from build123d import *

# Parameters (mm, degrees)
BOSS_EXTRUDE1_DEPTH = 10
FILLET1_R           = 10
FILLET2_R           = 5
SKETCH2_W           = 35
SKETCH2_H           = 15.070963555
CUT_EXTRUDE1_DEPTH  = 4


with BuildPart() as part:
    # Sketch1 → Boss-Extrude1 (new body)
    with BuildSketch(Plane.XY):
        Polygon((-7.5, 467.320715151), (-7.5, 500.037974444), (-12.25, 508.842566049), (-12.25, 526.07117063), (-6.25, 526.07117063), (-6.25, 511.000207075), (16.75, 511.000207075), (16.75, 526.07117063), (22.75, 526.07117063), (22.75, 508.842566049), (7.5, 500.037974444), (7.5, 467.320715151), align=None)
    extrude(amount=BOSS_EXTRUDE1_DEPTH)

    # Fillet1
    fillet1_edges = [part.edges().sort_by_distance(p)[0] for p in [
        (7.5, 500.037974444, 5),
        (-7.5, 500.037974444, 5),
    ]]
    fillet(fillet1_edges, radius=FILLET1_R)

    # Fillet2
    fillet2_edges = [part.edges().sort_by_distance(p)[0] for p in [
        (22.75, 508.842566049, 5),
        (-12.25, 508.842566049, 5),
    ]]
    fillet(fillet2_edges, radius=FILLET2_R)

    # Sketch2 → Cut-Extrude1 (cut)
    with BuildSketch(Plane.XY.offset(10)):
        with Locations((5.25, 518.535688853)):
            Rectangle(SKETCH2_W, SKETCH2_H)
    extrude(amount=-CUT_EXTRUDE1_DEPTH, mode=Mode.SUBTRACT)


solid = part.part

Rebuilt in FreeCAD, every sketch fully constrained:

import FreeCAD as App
import Part
import Sketcher

V = App.Vector
Q = App.Units.Quantity


def edges_at(feature, points):
    """Names of the edges that pass closest to the given points."""
    edges = feature.Shape.Edges
    near = lambda p: min(range(len(edges)), key=lambda i: edges[i].distToShape(Part.Vertex(*p))[0])
    return sorted({f"Edge{near(p) + 1}" for p in points})

doc = App.newDocument("Part")
params = doc.addObject("Spreadsheet::Sheet", "Params")
for row, (alias, value) in enumerate([
    ("sketch1_width", "15 mm"),
    ("sketch1_width2", "6 mm"),
    ("sketch1_width3", "23 mm"),
    ("pad1_length", "10 mm"),
    ("fillet_radius", "10 mm"),
    ("fillet2_radius", "5 mm"),
    ("sketch2_width", "35 mm"),
    ("pocket1_length", "4 mm"),
], start=1):
    params.set(f"A{row}", alias)
    params.set(f"B{row}", "=" + value)
    params.setAlias(f"B{row}", alias)

body = doc.addObject("PartDesign::Body", "Body")

# Sketch on XY plane
sketch1 = body.newObject("Sketcher::SketchObject", "Sketch")
sketch1.AttachmentSupport = (doc.getObject("XY_Plane"), [""])
sketch1.MapMode = "FlatFace"
sketch1.addGeometry(Part.LineSegment(V(-8, 500, 0), V(-8, 467, 0)), False)
sketch1.addGeometry(Part.LineSegment(V(-8, 467, 0), V(8, 467, 0)), False)
sketch1.addGeometry(Part.LineSegment(V(8, 467, 0), V(8, 500, 0)), False)
sketch1.addGeometry(Part.LineSegment(V(8, 500, 0), V(23, 509, 0)), False)
sketch1.addGeometry(Part.LineSegment(V(23, 509, 0), V(23, 526, 0)), False)
sketch1.addGeometry(Part.LineSegment(V(23, 526, 0), V(17, 526, 0)), False)
sketch1.addGeometry(Part.LineSegment(V(17, 526, 0), V(17, 511, 0)), False)
sketch1.addGeometry(Part.LineSegment(V(17, 511, 0), V(-6, 511, 0)), False)
sketch1.addGeometry(Part.LineSegment(V(-6, 511, 0), V(-6, 526, 0)), False)
sketch1.addGeometry(Part.LineSegment(V(-6, 526, 0), V(-12, 526, 0)), False)
sketch1.addGeometry(Part.LineSegment(V(-12, 526, 0), V(-12, 509, 0)), False)
sketch1.addGeometry(Part.LineSegment(V(-12, 509, 0), V(-8, 500, 0)), False)
sketch1.addConstraint(Sketcher.Constraint("Coincident", 0, 2, 1, 1))
sketch1.addConstraint(Sketcher.Constraint("Coincident", 1, 2, 2, 1))
sketch1.addConstraint(Sketcher.Constraint("Coincident", 2, 2, 3, 1))
sketch1.addConstraint(Sketcher.Constraint("Coincident", 3, 2, 4, 1))
sketch1.addConstraint(Sketcher.Constraint("Coincident", 4, 2, 5, 1))
sketch1.addConstraint(Sketcher.Constraint("Coincident", 5, 2, 6, 1))
sketch1.addConstraint(Sketcher.Constraint("Coincident", 6, 2, 7, 1))
sketch1.addConstraint(Sketcher.Constraint("Coincident", 7, 2, 8, 1))
sketch1.addConstraint(Sketcher.Constraint("Coincident", 8, 2, 9, 1))
sketch1.addConstraint(Sketcher.Constraint("Coincident", 9, 2, 10, 1))
sketch1.addConstraint(Sketcher.Constraint("Coincident", 10, 2, 11, 1))
sketch1.addConstraint(Sketcher.Constraint("Coincident", 11, 2, 0, 1))
sketch1.addConstraint(Sketcher.Constraint("Vertical", 0))
sketch1.addConstraint(Sketcher.Constraint("Horizontal", 1))
sketch1.addConstraint(Sketcher.Constraint("Vertical", 2))
sketch1.addConstraint(Sketcher.Constraint("Vertical", 4))
sketch1.addConstraint(Sketcher.Constraint("Horizontal", 5))
sketch1.addConstraint(Sketcher.Constraint("Vertical", 6))
sketch1.addConstraint(Sketcher.Constraint("Horizontal", 7))
sketch1.addConstraint(Sketcher.Constraint("Vertical", 8))
sketch1.addConstraint(Sketcher.Constraint("Horizontal", 9))
sketch1.addConstraint(Sketcher.Constraint("Vertical", 10))
sketch1.addConstraint(Sketcher.Constraint("Symmetric", 2, 2, 11, 2, -2))
sketch1.addConstraint(Sketcher.Constraint("Horizontal", 5, 2, 8, 2))
sketch1.addConstraint(Sketcher.Constraint("Horizontal", 3, 2, 10, 2))
sketch1.addConstraint(Sketcher.Constraint("Equal", 5, 9))
sketch1.addConstraint(Sketcher.Constraint("DistanceX", 1, 1, 1, 2, 15.0))
sketch1.addConstraint(Sketcher.Constraint("DistanceX", 5, 2, 5, 1, 6.0))
sketch1.addConstraint(Sketcher.Constraint("DistanceX", 7, 2, 7, 1, 23.0))
sketch1.addConstraint(Sketcher.Constraint("Angle", 3, Q("30 deg")))
sketch1.addConstraint(Sketcher.Constraint("DistanceX", -1, 1, 3, 2, 22.75))
sketch1.addConstraint(Sketcher.Constraint("DistanceY", 0, 2, 0, 1, 32.717259))
sketch1.addConstraint(Sketcher.Constraint("DistanceY", 4, 1, 4, 2, 17.228605))
sketch1.addConstraint(Sketcher.Constraint("DistanceY", 6, 2, 6, 1, 15.070964))
sketch1.addConstraint(Sketcher.Constraint("DistanceY", -1, 1, 4, 2, 526.071171))
sketch1.setExpression("Constraints[26]", "Params.sketch1_width")
sketch1.setExpression("Constraints[27]", "Params.sketch1_width2")
sketch1.setExpression("Constraints[28]", "Params.sketch1_width3")
pad1 = body.newObject("PartDesign::Pad", "Pad")
pad1.Profile = sketch1
pad1.setExpression("Length", "Params.pad1_length")
doc.recompute()

fillet = body.newObject("PartDesign::Fillet", "Fillet")
fillet.Base = (pad1, edges_at(pad1, [(7.5, 500.038, 5), (-7.5, 500.038, 5)]))
fillet.setExpression("Radius", "Params.fillet_radius")
doc.recompute()

fillet2 = body.newObject("PartDesign::Fillet", "Fillet001")
fillet2.Base = (fillet, edges_at(fillet, [(22.75, 508.843, 5), (-12.25, 508.843, 5)]))
fillet2.setExpression("Radius", "Params.fillet2_radius")

# Sketch on XY plane
sketch2 = body.newObject("Sketcher::SketchObject", "Sketch001")
sketch2.AttachmentSupport = (doc.getObject("XY_Plane"), [""])
sketch2.MapMode = "FlatFace"
sketch2.AttachmentOffset = App.Placement(V(0, 0, 10), App.Rotation())
sketch2.addGeometry(Part.LineSegment(V(-12.25, 526.071171, 0), V(-12.25, 511.000207, 0)), False)
sketch2.addGeometry(Part.LineSegment(V(-12.25, 511.000207, 0), V(22.75, 511.000207, 0)), False)
sketch2.addGeometry(Part.LineSegment(V(22.75, 511.000207, 0), V(22.75, 526.071171, 0)), False)
sketch2.addGeometry(Part.LineSegment(V(22.75, 526.071171, 0), V(-12.25, 526.071171, 0)), False)
sketch2.addConstraint(Sketcher.Constraint("Coincident", 0, 2, 1, 1))
sketch2.addConstraint(Sketcher.Constraint("Coincident", 1, 2, 2, 1))
sketch2.addConstraint(Sketcher.Constraint("Coincident", 2, 2, 3, 1))
sketch2.addConstraint(Sketcher.Constraint("Coincident", 3, 2, 0, 1))
sketch2.addConstraint(Sketcher.Constraint("Vertical", 0))
sketch2.addConstraint(Sketcher.Constraint("Horizontal", 1))
sketch2.addConstraint(Sketcher.Constraint("Vertical", 2))
sketch2.addConstraint(Sketcher.Constraint("Horizontal", 3))
sketch2.addConstraint(Sketcher.Constraint("DistanceX", 1, 1, 1, 2, 35.0))
sketch2.addConstraint(Sketcher.Constraint("DistanceX", 0, 2, -1, 1, 12.25))
sketch2.addConstraint(Sketcher.Constraint("DistanceY", 0, 2, 0, 1, 15.070964))
sketch2.addConstraint(Sketcher.Constraint("DistanceY", -1, 1, 2, 2, 526.071171))
sketch2.setExpression("Constraints[8]", "Params.sketch2_width")
pocket1 = body.newObject("PartDesign::Pocket", "Pocket")
pocket1.Profile = sketch2
pocket1.setExpression("Length", "Params.pocket1_length")

doc.recompute()
